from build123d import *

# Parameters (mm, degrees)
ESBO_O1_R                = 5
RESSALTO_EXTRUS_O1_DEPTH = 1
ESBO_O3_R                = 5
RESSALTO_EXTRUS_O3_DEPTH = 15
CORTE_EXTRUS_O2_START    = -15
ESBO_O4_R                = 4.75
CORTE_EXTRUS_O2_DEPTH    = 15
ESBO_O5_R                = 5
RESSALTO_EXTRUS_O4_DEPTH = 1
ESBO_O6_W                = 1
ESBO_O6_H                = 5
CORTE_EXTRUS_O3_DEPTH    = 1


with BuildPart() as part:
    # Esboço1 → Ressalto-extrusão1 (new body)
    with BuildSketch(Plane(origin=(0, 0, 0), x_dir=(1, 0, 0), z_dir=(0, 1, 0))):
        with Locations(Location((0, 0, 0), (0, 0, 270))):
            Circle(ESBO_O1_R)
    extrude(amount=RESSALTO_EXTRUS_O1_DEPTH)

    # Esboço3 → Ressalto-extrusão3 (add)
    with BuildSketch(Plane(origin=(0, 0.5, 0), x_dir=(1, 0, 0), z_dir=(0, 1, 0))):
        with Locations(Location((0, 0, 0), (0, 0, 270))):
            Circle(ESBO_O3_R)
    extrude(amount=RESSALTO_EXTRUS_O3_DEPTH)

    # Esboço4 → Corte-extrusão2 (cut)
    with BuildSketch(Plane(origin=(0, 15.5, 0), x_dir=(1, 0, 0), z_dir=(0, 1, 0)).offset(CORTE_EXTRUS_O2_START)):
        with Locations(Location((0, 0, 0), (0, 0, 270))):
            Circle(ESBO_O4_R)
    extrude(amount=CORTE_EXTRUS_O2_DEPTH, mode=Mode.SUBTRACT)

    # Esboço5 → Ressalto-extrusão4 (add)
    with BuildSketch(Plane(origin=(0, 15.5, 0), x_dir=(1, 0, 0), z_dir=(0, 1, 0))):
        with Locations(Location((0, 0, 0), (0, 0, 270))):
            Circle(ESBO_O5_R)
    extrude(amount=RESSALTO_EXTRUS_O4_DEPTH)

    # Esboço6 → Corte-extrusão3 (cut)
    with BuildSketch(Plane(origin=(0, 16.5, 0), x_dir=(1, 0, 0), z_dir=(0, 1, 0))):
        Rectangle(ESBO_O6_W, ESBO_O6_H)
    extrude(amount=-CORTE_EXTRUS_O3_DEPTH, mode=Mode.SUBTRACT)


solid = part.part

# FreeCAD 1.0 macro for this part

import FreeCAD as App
import Part
import Sketcher

V = App.Vector
Q = App.Units.Quantity

doc = App.newDocument("Part")
params = doc.addObject("Spreadsheet::Sheet", "Params")
for row, (alias, value) in enumerate([
    ("sketch1_diameter", "10 mm"),
    ("pad1_length", "1 mm"),
    ("sketch2_diameter", "10 mm"),
    ("pad2_length", "15 mm"),
    ("sketch3_diameter", "9.5 mm"),
    ("pocket1_length", "15 mm"),
    ("sketch4_diameter", "10 mm"),
    ("pad3_length", "1 mm"),
    ("sketch5_width", "1 mm"),
    ("sketch5_height", "5 mm"),
    ("pocket2_length", "1 mm"),
], start=1):
    params.set(f"A{row}", alias)
    params.set(f"B{row}", "=" + value)
    params.setAlias(f"B{row}", alias)

body = doc.addObject("PartDesign::Body", "Body")

sketch1 = body.newObject("Sketcher::SketchObject", "Sketch")
sketch1.AttachmentSupport = (doc.getObject("XZ_Plane"), [""])
sketch1.MapMode = "FlatFace"
sketch1.addGeometry(Part.Circle(V(0, 0, 0), V(0, 0, 1), 5), False)
sketch1.addConstraint([
    Sketcher.Constraint("Coincident", 0, 3, -1, 1),
    Sketcher.Constraint("Diameter", 0, Q("10 mm")),
])
sketch1.setExpression("Constraints[1]", "Params.sketch1_diameter")
pad1 = body.newObject("PartDesign::Pad", "Pad")
pad1.Profile = sketch1
pad1.setExpression("Length", "Params.pad1_length")
pad1.Reversed = True

sketch2 = body.newObject("Sketcher::SketchObject", "Sketch001")
sketch2.AttachmentSupport = (doc.getObject("XZ_Plane"), [""])
sketch2.MapMode = "FlatFace"
sketch2.AttachmentOffset = App.Placement(V(0, 0, -0.5), App.Rotation())
sketch2.addGeometry(Part.Circle(V(0, 0, 0), V(0, 0, 1), 5), False)
sketch2.addConstraint([
    Sketcher.Constraint("Coincident", 0, 3, -1, 1),
    Sketcher.Constraint("Diameter", 0, Q("10 mm")),
])
sketch2.setExpression("Constraints[1]", "Params.sketch2_diameter")
pad2 = body.newObject("PartDesign::Pad", "Pad001")
pad2.Profile = sketch2
pad2.setExpression("Length", "Params.pad2_length")
pad2.Reversed = True

sketch3 = body.newObject("Sketcher::SketchObject", "Sketch002")
sketch3.AttachmentSupport = (doc.getObject("XZ_Plane"), [""])
sketch3.MapMode = "FlatFace"
sketch3.AttachmentOffset = App.Placement(V(0, 0, -0.5), App.Rotation())
sketch3.addGeometry(Part.Circle(V(0, 0, 0), V(0, 0, 1), 4.8), False)
sketch3.addConstraint([
    Sketcher.Constraint("Coincident", 0, 3, -1, 1),
    Sketcher.Constraint("Diameter", 0, Q("9.5 mm")),
])
sketch3.setExpression("Constraints[1]", "Params.sketch3_diameter")
pocket1 = body.newObject("PartDesign::Pocket", "Pocket")
pocket1.Profile = sketch3
pocket1.setExpression("Length", "Params.pocket1_length")

sketch4 = body.newObject("Sketcher::SketchObject", "Sketch003")
sketch4.AttachmentSupport = (doc.getObject("XZ_Plane"), [""])
sketch4.MapMode = "FlatFace"
sketch4.AttachmentOffset = App.Placement(V(0, 0, -15.5), App.Rotation())
sketch4.addGeometry(Part.Circle(V(0, 0, 0), V(0, 0, 1), 5), False)
sketch4.addConstraint([
    Sketcher.Constraint("Coincident", 0, 3, -1, 1),
    Sketcher.Constraint("Diameter", 0, Q("10 mm")),
])
sketch4.setExpression("Constraints[1]", "Params.sketch4_diameter")
pad3 = body.newObject("PartDesign::Pad", "Pad002")
pad3.Profile = sketch4
pad3.setExpression("Length", "Params.pad3_length")
pad3.Reversed = True

sketch5 = body.newObject("Sketcher::SketchObject", "Sketch004")
sketch5.AttachmentSupport = (doc.getObject("XZ_Plane"), [""])
sketch5.MapMode = "FlatFace"
sketch5.AttachmentOffset = App.Placement(V(0, 0, -16.5), App.Rotation())
sketch5.addGeometry([
    Part.LineSegment(V(-0.5, -2.5, 0), V(-0.5, 2.5, 0)),
    Part.LineSegment(V(-0.5, 2.5, 0), V(0.5, 2.5, 0)),
    Part.LineSegment(V(0.5, 2.5, 0), V(0.5, -2.5, 0)),
    Part.LineSegment(V(0.5, -2.5, 0), V(-0.5, -2.5, 0)),
], False)
sketch5.addConstraint([
    Sketcher.Constraint("Coincident", 0, 2, 1, 1),
    Sketcher.Constraint("Coincident", 1, 2, 2, 1),
    Sketcher.Constraint("Coincident", 2, 2, 3, 1),
    Sketcher.Constraint("Coincident", 3, 2, 0, 1),
    Sketcher.Constraint("Vertical", 0),
    Sketcher.Constraint("Horizontal", 1),
    Sketcher.Constraint("Vertical", 2),
    Sketcher.Constraint("Horizontal", 3),
    Sketcher.Constraint("Symmetric", 0, 2, 2, 2, -1, 1),
    Sketcher.Constraint("DistanceX", 1, 1, 1, 2, Q("1 mm")),
    Sketcher.Constraint("DistanceY", 0, 1, 0, 2, Q("5 mm")),
])
sketch5.setExpression("Constraints[9]", "Params.sketch5_width")
sketch5.setExpression("Constraints[10]", "Params.sketch5_height")
pocket2 = body.newObject("PartDesign::Pocket", "Pocket001")
pocket2.Profile = sketch5
pocket2.setExpression("Length", "Params.pocket2_length")
pocket2.Reversed = True

doc.recompute()
